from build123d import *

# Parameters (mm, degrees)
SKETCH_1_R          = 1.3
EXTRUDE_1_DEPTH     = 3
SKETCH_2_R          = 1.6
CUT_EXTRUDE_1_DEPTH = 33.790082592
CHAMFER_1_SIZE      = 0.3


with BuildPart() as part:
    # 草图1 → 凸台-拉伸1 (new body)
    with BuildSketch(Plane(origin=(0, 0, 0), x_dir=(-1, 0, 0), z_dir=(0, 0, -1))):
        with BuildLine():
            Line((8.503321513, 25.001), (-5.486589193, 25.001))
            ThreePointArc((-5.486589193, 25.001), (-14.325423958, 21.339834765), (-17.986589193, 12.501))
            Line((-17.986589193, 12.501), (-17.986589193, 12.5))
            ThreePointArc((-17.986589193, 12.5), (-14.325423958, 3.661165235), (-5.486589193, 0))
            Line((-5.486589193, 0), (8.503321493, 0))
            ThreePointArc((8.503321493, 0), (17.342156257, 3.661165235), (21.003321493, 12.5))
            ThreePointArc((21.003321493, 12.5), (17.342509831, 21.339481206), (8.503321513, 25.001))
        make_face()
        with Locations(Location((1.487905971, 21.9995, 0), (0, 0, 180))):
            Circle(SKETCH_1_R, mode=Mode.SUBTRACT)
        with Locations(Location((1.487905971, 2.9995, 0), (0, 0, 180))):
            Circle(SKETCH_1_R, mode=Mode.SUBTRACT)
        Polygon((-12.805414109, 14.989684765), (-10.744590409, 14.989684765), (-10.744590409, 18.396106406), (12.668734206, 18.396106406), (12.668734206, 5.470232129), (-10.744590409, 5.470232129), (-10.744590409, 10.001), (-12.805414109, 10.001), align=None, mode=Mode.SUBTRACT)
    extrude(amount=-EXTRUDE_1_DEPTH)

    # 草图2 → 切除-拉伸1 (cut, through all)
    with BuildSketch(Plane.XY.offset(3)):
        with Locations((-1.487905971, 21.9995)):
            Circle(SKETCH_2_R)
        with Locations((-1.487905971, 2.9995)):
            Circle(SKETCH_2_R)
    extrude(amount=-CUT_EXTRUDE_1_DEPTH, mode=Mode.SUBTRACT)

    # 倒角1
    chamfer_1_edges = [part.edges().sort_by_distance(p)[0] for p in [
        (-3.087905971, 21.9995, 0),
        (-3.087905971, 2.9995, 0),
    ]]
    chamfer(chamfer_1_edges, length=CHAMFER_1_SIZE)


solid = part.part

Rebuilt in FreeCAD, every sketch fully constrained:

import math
import FreeCAD as App
import Part
import Sketcher
from FreeCAD import Vector
Q = App.Units.Quantity


def edges_at(feature, points):
    """Names of the edges that pass closest to the given points."""
    edges = feature.Shape.Edges
    near = lambda p: min(range(len(edges)), key=lambda i: edges[i].distToShape(Part.Vertex(*p))[0])
    return sorted({f"Edge{near(p) + 1}" for p in points})

doc = App.newDocument("Part")
params = doc.addObject("Spreadsheet::Sheet", "Params")
for row, (alias, value) in enumerate([
    ("sketch1_diameter", "2.6 mm"),
    ("sketch1_radius", "12.5 mm"),
    ("pad1_length", "3 mm"),
    ("sketch2_diameter", "3.2 mm"),
    ("chamfer_size", "0.3 mm"),
], start=1):
    params.set(f"A{row}", alias)
    params.set(f"B{row}", "=" + value)
    params.setAlias(f"B{row}", alias)

body = doc.addObject("PartDesign::Body", "Body")

# Sketch on XY plane
sketch1 = body.newObject("Sketcher::SketchObject", "Sketch")
sketch1.AttachmentSupport = (doc.getObject("XY_Plane"), [""])
sketch1.MapMode = "FlatFace"
sketch1.addGeometry([
    Part.LineSegment(Vector(-8.5033, 25.001, 0), Vector(5.4866, 25.001, 0)),  # 0
    Part.ArcOfCircle(Part.Circle(Vector(5.4866, 12.501, 0), Vector(0, 0, 1), 12.5), math.radians(0), math.radians(90)),  # 1
    Part.LineSegment(Vector(17.9866, 12.501, 0), Vector(17.9866, 12.5, 0)),  # 2
    Part.ArcOfCircle(Part.Circle(Vector(5.4866, 12.5, 0), Vector(0, 0, 1), 12.5), math.radians(-90), math.radians(0)),  # 3
    Part.LineSegment(Vector(5.4866, 0, 0), Vector(-8.5033, 0, 0)),  # 4
    Part.ArcOfCircle(Part.Circle(Vector(-8.5033, 12.5, 0), Vector(0, 0, 1), 12.5), math.radians(-180), math.radians(-90)),  # 5
    Part.ArcOfCircle(Part.Circle(Vector(-8.5033, 12.501, 0), Vector(0, 0, 1), 12.5), math.radians(90), math.radians(180)),  # 6
    Part.Circle(Vector(-1.4879, 2.9995, 0), Vector(0, 0, 1), 1.3),  # 7
    Part.LineSegment(Vector(12.8054, 10.001, 0), Vector(12.8054, 14.9897, 0)),  # 8
    Part.LineSegment(Vector(12.8054, 14.9897, 0), Vector(10.7446, 14.9897, 0)),  # 9
    Part.LineSegment(Vector(10.7446, 14.9897, 0), Vector(10.7446, 18.3961, 0)),  # 10
    Part.LineSegment(Vector(10.7446, 18.3961, 0), Vector(-12.6687, 18.3961, 0)),  # 11
    Part.LineSegment(Vector(-12.6687, 18.3961, 0), Vector(-12.6687, 5.4702, 0)),  # 12
    Part.LineSegment(Vector(-12.6687, 5.4702, 0), Vector(10.7446, 5.4702, 0)),  # 13
    Part.LineSegment(Vector(10.7446, 5.4702, 0), Vector(10.7446, 10.001, 0)),  # 14
    Part.LineSegment(Vector(10.7446, 10.001, 0), Vector(12.8054, 10.001, 0)),  # 15
    Part.Circle(Vector(-1.4879, 21.9995, 0), Vector(0, 0, 1), 1.3),  # 16
], False)
sketch1.addConstraint([
    Sketcher.Constraint("Tangent", 0, 2, 1, 2),
    Sketcher.Constraint("Tangent", 1, 1, 2, 1),
    Sketcher.Constraint("Coincident", 2, 2, 3, 2),
    Sketcher.Constraint("Tangent", 3, 1, 4, 1),
    Sketcher.Constraint("Tangent", 4, 2, 5, 2),
    Sketcher.Constraint("Coincident", 5, 1, 6, 2),
    Sketcher.Constraint("Tangent", 6, 1, 0, 1),
    Sketcher.Constraint("Coincident", 8, 2, 9, 1),
    Sketcher.Constraint("Coincident", 9, 2, 10, 1),
    Sketcher.Constraint("Coincident", 10, 2, 11, 1),
    Sketcher.Constraint("Coincident", 11, 2, 12, 1),
    Sketcher.Constraint("Coincident", 12, 2, 13, 1),
    Sketcher.Constraint("Coincident", 13, 2, 14, 1),
    Sketcher.Constraint("Coincident", 14, 2, 15, 1),
    Sketcher.Constraint("Coincident", 15, 2, 8, 1),
    Sketcher.Constraint("Horizontal", 0),
    Sketcher.Constraint("Horizontal", 4),
    Sketcher.Constraint("Vertical", 8),
    Sketcher.Constraint("Horizontal", 9),
    Sketcher.Constraint("Vertical", 10),
    Sketcher.Constraint("Horizontal", 11),
    Sketcher.Constraint("Vertical", 12),
    Sketcher.Constraint("Horizontal", 13),
    Sketcher.Constraint("Vertical", 14),
    Sketcher.Constraint("Horizontal", 15),
    Sketcher.Constraint("Equal", 1, 3),
    Sketcher.Constraint("Equal", 3, 5),
    Sketcher.Constraint("Equal", 5, 6),
    Sketcher.Constraint("Equal", 7, 16),
    Sketcher.Constraint("PointOnObject", 3, 1, -1),
    Sketcher.Constraint("Horizontal", 6, 3, 1, 1),
    Sketcher.Constraint("Horizontal", 5, 3, 2, 2),
    Sketcher.Constraint("Horizontal", 2, 2, 5, 1),
    Sketcher.Constraint("Vertical", 7, 3, 16, 3),
    Sketcher.Constraint("Vertical", 10, 2, 13, 2),
    Sketcher.Constraint("Diameter", 7, Q("2.6 mm")),
    Sketcher.Constraint("Radius", 1, Q("12.5 mm")),
    Sketcher.Constraint("DistanceY", 7, 3, 16, 3, Q("19 mm")),
    Sketcher.Constraint("DistanceY", 14, 2, 1, 3, Q("2.5 mm")),
    Sketcher.Constraint("DistanceY", 2, 2, 2, 1, Q("0.001 mm")),
    Sketcher.Constraint("DistanceX", 1, 3, 9, 2, Q("5.258001 mm")),
    Sketcher.Constraint("DistanceX", 0, 1, 0, 2, Q("13.989911 mm")),
    Sketcher.Constraint("DistanceY", 10, 1, 10, 2, Q("3.406422 mm")),
    Sketcher.Constraint("DistanceY", -1, 1, 7, 3, Q("2.9995 mm")),
    Sketcher.Constraint("DistanceX", 9, 2, 9, 1, Q("2.060824 mm")),
    Sketcher.Constraint("DistanceX", 11, 2, 11, 1, Q("23.413325 mm")),
    Sketcher.Constraint("DistanceY", 8, 1, 8, 2, Q("4.988685 mm")),
    Sketcher.Constraint("DistanceY", 12, 2, 12, 1, Q("12.925874 mm")),
    Sketcher.Constraint("DistanceX", -1, 1, 1, 3, Q("5.486589 mm")),
    Sketcher.Constraint("DistanceX", 11, 2, 16, 3, Q("11.180828 mm")),
])
sketch1.setExpression("Constraints[35]", "Params.sketch1_diameter")
sketch1.setExpression("Constraints[36]", "Params.sketch1_radius")
pad1 = body.newObject("PartDesign::Pad", "Pad")
pad1.Profile = sketch1
pad1.setExpression("Length", "Params.pad1_length")

# Sketch on XY plane
sketch2 = body.newObject("Sketcher::SketchObject", "Sketch001")
sketch2.AttachmentSupport = (doc.getObject("XY_Plane"), [""])
sketch2.MapMode = "FlatFace"
sketch2.AttachmentOffset = App.Placement(Vector(0, 0, 3), App.Rotation())
sketch2.addGeometry([
    Part.Circle(Vector(-1.5, 22, 0), Vector(0, 0, 1), 1.6),
    Part.Circle(Vector(-1.5, 3, 0), Vector(0, 0, 1), 1.6),
], False)
sketch2.addConstraint([
    Sketcher.Constraint("Equal", 0, 1),
    Sketcher.Constraint("Vertical", 0, 3, 1, 3),
    Sketcher.Constraint("Diameter", 0, Q("3.2 mm")),
    Sketcher.Constraint("DistanceY", 1, 3, 0, 3, Q("19 mm")),
    Sketcher.Constraint("DistanceY", -1, 1, 0, 3, Q("21.9995 mm")),
    Sketcher.Constraint("DistanceX", 0, 3, -1, 1, Q("1.487906 mm")),
])
sketch2.setExpression("Constraints[2]", "Params.sketch2_diameter")
pocket1 = body.newObject("PartDesign::Pocket", "Pocket")
pocket1.Profile = sketch2
pocket1.Type = "ThroughAll"
doc.recompute()

chamfer = body.newObject("PartDesign::Chamfer", "Chamfer")
chamfer.Base = (pocket1, edges_at(pocket1, [(-3.088, 22, 0), (-3.088, 2.999, 0)]))
chamfer.setExpression("Size", "Params.chamfer_size")

doc.recompute()
